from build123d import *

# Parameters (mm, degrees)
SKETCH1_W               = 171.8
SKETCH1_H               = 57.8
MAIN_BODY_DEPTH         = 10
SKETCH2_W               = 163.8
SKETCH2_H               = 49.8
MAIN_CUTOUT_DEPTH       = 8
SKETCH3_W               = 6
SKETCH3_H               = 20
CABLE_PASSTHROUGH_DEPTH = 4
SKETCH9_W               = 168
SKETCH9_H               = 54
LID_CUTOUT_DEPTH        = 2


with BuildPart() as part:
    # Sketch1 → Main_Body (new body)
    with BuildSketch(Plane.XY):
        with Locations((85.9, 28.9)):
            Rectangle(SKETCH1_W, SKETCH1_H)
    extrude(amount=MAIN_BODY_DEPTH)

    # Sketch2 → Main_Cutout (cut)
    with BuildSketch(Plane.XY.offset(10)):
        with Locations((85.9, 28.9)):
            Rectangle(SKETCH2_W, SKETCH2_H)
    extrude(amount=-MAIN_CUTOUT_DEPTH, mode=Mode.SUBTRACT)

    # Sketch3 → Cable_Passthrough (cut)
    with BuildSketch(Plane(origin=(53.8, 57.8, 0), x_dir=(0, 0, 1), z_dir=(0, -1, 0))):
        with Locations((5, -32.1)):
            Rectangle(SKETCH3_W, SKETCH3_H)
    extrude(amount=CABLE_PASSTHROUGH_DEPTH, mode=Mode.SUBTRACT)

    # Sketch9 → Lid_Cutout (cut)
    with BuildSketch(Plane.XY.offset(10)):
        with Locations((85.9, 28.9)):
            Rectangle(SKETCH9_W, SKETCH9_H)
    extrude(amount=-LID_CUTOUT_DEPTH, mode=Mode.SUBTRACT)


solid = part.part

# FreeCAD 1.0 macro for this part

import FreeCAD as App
import Part
import Sketcher

doc = App.newDocument("Part")
params = doc.addObject("Spreadsheet::Sheet", "Params")
for row, (alias, value) in enumerate([
    ("sketch1_width", "171.8 mm"),
    ("sketch1_height", "57.8 mm"),
    ("pad1_length", "10 mm"),
    ("sketch2_width", "163.8 mm"),
    ("sketch2_height", "49.8 mm"),
    ("pocket1_length", "8 mm"),
    ("sketch3_width", "20 mm"),
    ("sketch3_height", "6 mm"),
    ("pocket2_length", "4 mm"),
    ("sketch4_width", "168 mm"),
    ("sketch4_height", "54 mm"),
    ("pocket3_length", "2 mm"),
], start=1):
    params.set(f"A{row}", alias)
    params.set(f"B{row}", "=" + value)
    params.setAlias(f"B{row}", alias)

body = doc.addObject("PartDesign::Body", "Body")

sketch1 = doc.addObject("Sketcher::SketchObject", "Sketch")
body.addObject(sketch1)
sketch1.AttachmentSupport = (doc.XY_Plane, [""])
sketch1.MapMode = "FlatFace"
sketch1.addGeometry([
    Part.LineSegment(App.Vector(0, 57.8, 0), App.Vector(0, 0, 0)),
    Part.LineSegment(App.Vector(0, 0, 0), App.Vector(171.8, 0, 0)),
    Part.LineSegment(App.Vector(171.8, 0, 0), App.Vector(171.8, 57.8, 0)),
    Part.LineSegment(App.Vector(171.8, 57.8, 0), App.Vector(0, 57.8, 0)),
], False)
sketch1.addConstraint([
    Sketcher.Constraint("Coincident", 0, 2, 1, 1),
    Sketcher.Constraint("Coincident", 1, 2, 2, 1),
    Sketcher.Constraint("Coincident", 2, 2, 3, 1),
    Sketcher.Constraint("Coincident", 3, 2, 0, 1),
    Sketcher.Constraint("Vertical", 0),
    Sketcher.Constraint("Horizontal", 1),
    Sketcher.Constraint("Vertical", 2),
    Sketcher.Constraint("Horizontal", 3),
    Sketcher.Constraint("Coincident", 0, 2, -1, 1),
    Sketcher.Constraint("DistanceX", 1, 1, 1, 2, 171.8),
    Sketcher.Constraint("DistanceY", 0, 2, 0, 1, 57.8),
])
sketch1.setExpression("Constraints[9]", "Params.sketch1_width")
sketch1.setExpression("Constraints[10]", "Params.sketch1_height")
pad1 = doc.addObject("PartDesign::Pad", "Pad")
body.addObject(pad1)
pad1.Profile = sketch1
pad1.setExpression("Length", "Params.pad1_length")

sketch2 = doc.addObject("Sketcher::SketchObject", "Sketch001")
body.addObject(sketch2)
sketch2.AttachmentSupport = (doc.XY_Plane, [""])
sketch2.MapMode = "FlatFace"
sketch2.AttachmentOffset = App.Placement(App.Vector(0, 0, 10), App.Rotation())
sketch2.addGeometry([
    Part.LineSegment(App.Vector(4, 53.8, 0), App.Vector(4, 4, 0)),
    Part.LineSegment(App.Vector(4, 4, 0), App.Vector(167.8, 4, 0)),
    Part.LineSegment(App.Vector(167.8, 4, 0), App.Vector(167.8, 53.8, 0)),
    Part.LineSegment(App.Vector(167.8, 53.8, 0), App.Vector(4, 53.8, 0)),
], False)
sketch2.addConstraint([
    Sketcher.Constraint("Coincident", 0, 2, 1, 1),
    Sketcher.Constraint("Coincident", 1, 2, 2, 1),
    Sketcher.Constraint("Coincident", 2, 2, 3, 1),
    Sketcher.Constraint("Coincident", 3, 2, 0, 1),
    Sketcher.Constraint("Vertical", 0),
    Sketcher.Constraint("Horizontal", 1),
    Sketcher.Constraint("Vertical", 2),
    Sketcher.Constraint("Horizontal", 3),
    Sketcher.Constraint("DistanceX", 1, 1, 1, 2, 163.8),
    Sketcher.Constraint("DistanceY", 0, 2, 0, 1, 49.8),
    Sketcher.Constraint("DistanceX", -1, 1, 0, 2, 4.0),
    Sketcher.Constraint("DistanceY", -1, 1, 0, 2, 4.0),
])
sketch2.setExpression("Constraints[8]", "Params.sketch2_width")
sketch2.setExpression("Constraints[9]", "Params.sketch2_height")
pocket1 = doc.addObject("PartDesign::Pocket", "Pocket")
body.addObject(pocket1)
pocket1.Profile = sketch2
pocket1.setExpression("Length", "Params.pocket1_length")

sketch3 = doc.addObject("Sketcher::SketchObject", "Sketch002")
body.addObject(sketch3)
sketch3.AttachmentSupport = (doc.XZ_Plane, [""])
sketch3.MapMode = "FlatFace"
sketch3.AttachmentOffset = App.Placement(App.Vector(0, 0, -57.8), App.Rotation())
sketch3.addGeometry([
    Part.LineSegment(App.Vector(75.9, 2, 0), App.Vector(95.9, 2, 0)),
    Part.LineSegment(App.Vector(95.9, 2, 0), App.Vector(95.9, 8, 0)),
    Part.LineSegment(App.Vector(95.9, 8, 0), App.Vector(75.9, 8, 0)),
    Part.LineSegment(App.Vector(75.9, 8, 0), App.Vector(75.9, 2, 0)),
], False)
sketch3.addConstraint([
    Sketcher.Constraint("Coincident", 0, 2, 1, 1),
    Sketcher.Constraint("Coincident", 1, 2, 2, 1),
    Sketcher.Constraint("Coincident", 2, 2, 3, 1),
    Sketcher.Constraint("Coincident", 3, 2, 0, 1),
    Sketcher.Constraint("Horizontal", 0),
    Sketcher.Constraint("Vertical", 1),
    Sketcher.Constraint("Horizontal", 2),
    Sketcher.Constraint("Vertical", 3),
    Sketcher.Constraint("DistanceX", 0, 1, 0, 2, 20.0),
    Sketcher.Constraint("DistanceY", 1, 1, 1, 2, 6.0),
    Sketcher.Constraint("DistanceY", -1, 1, 0, 2, 2.0),
    Sketcher.Constraint("DistanceX", -1, 1, 0, 2, 95.9),
])
sketch3.setExpression("Constraints[8]", "Params.sketch3_width")
sketch3.setExpression("Constraints[9]", "Params.sketch3_height")
pocket2 = doc.addObject("PartDesign::Pocket", "Pocket001")
body.addObject(pocket2)
pocket2.Profile = sketch3
pocket2.setExpression("Length", "Params.pocket2_length")
pocket2.Reversed = True

sketch4 = doc.addObject("Sketcher::SketchObject", "Sketch003")
body.addObject(sketch4)
sketch4.AttachmentSupport = (doc.XY_Plane, [""])
sketch4.MapMode = "FlatFace"
sketch4.AttachmentOffset = App.Placement(App.Vector(0, 0, 10), App.Rotation())
sketch4.addGeometry([
    Part.LineSegment(App.Vector(1.9, 55.9, 0), App.Vector(1.9, 1.9, 0)),
    Part.LineSegment(App.Vector(1.9, 1.9, 0), App.Vector(169.9, 1.9, 0)),
    Part.LineSegment(App.Vector(169.9, 1.9, 0), App.Vector(169.9, 55.9, 0)),
    Part.LineSegment(App.Vector(169.9, 55.9, 0), App.Vector(1.9, 55.9, 0)),
], False)
sketch4.addConstraint([
    Sketcher.Constraint("Coincident", 0, 2, 1, 1),
    Sketcher.Constraint("Coincident", 1, 2, 2, 1),
    Sketcher.Constraint("Coincident", 2, 2, 3, 1),
    Sketcher.Constraint("Coincident", 3, 2, 0, 1),
    Sketcher.Constraint("Vertical", 0),
    Sketcher.Constraint("Horizontal", 1),
    Sketcher.Constraint("Vertical", 2),
    Sketcher.Constraint("Horizontal", 3),
    Sketcher.Constraint("DistanceX", 1, 1, 1, 2, 168.0),
    Sketcher.Constraint("DistanceY", 0, 2, 0, 1, 54.0),
    Sketcher.Constraint("DistanceX", -1, 1, 0, 2, 1.9),
    Sketcher.Constraint("DistanceY", -1, 1, 0, 2, 1.9),
])
sketch4.setExpression("Constraints[8]", "Params.sketch4_width")
sketch4.setExpression("Constraints[9]", "Params.sketch4_height")
pocket3 = doc.addObject("PartDesign::Pocket", "Pocket002")
body.addObject(pocket3)
pocket3.Profile = sketch4
pocket3.setExpression("Length", "Params.pocket3_length")

doc.recompute()
